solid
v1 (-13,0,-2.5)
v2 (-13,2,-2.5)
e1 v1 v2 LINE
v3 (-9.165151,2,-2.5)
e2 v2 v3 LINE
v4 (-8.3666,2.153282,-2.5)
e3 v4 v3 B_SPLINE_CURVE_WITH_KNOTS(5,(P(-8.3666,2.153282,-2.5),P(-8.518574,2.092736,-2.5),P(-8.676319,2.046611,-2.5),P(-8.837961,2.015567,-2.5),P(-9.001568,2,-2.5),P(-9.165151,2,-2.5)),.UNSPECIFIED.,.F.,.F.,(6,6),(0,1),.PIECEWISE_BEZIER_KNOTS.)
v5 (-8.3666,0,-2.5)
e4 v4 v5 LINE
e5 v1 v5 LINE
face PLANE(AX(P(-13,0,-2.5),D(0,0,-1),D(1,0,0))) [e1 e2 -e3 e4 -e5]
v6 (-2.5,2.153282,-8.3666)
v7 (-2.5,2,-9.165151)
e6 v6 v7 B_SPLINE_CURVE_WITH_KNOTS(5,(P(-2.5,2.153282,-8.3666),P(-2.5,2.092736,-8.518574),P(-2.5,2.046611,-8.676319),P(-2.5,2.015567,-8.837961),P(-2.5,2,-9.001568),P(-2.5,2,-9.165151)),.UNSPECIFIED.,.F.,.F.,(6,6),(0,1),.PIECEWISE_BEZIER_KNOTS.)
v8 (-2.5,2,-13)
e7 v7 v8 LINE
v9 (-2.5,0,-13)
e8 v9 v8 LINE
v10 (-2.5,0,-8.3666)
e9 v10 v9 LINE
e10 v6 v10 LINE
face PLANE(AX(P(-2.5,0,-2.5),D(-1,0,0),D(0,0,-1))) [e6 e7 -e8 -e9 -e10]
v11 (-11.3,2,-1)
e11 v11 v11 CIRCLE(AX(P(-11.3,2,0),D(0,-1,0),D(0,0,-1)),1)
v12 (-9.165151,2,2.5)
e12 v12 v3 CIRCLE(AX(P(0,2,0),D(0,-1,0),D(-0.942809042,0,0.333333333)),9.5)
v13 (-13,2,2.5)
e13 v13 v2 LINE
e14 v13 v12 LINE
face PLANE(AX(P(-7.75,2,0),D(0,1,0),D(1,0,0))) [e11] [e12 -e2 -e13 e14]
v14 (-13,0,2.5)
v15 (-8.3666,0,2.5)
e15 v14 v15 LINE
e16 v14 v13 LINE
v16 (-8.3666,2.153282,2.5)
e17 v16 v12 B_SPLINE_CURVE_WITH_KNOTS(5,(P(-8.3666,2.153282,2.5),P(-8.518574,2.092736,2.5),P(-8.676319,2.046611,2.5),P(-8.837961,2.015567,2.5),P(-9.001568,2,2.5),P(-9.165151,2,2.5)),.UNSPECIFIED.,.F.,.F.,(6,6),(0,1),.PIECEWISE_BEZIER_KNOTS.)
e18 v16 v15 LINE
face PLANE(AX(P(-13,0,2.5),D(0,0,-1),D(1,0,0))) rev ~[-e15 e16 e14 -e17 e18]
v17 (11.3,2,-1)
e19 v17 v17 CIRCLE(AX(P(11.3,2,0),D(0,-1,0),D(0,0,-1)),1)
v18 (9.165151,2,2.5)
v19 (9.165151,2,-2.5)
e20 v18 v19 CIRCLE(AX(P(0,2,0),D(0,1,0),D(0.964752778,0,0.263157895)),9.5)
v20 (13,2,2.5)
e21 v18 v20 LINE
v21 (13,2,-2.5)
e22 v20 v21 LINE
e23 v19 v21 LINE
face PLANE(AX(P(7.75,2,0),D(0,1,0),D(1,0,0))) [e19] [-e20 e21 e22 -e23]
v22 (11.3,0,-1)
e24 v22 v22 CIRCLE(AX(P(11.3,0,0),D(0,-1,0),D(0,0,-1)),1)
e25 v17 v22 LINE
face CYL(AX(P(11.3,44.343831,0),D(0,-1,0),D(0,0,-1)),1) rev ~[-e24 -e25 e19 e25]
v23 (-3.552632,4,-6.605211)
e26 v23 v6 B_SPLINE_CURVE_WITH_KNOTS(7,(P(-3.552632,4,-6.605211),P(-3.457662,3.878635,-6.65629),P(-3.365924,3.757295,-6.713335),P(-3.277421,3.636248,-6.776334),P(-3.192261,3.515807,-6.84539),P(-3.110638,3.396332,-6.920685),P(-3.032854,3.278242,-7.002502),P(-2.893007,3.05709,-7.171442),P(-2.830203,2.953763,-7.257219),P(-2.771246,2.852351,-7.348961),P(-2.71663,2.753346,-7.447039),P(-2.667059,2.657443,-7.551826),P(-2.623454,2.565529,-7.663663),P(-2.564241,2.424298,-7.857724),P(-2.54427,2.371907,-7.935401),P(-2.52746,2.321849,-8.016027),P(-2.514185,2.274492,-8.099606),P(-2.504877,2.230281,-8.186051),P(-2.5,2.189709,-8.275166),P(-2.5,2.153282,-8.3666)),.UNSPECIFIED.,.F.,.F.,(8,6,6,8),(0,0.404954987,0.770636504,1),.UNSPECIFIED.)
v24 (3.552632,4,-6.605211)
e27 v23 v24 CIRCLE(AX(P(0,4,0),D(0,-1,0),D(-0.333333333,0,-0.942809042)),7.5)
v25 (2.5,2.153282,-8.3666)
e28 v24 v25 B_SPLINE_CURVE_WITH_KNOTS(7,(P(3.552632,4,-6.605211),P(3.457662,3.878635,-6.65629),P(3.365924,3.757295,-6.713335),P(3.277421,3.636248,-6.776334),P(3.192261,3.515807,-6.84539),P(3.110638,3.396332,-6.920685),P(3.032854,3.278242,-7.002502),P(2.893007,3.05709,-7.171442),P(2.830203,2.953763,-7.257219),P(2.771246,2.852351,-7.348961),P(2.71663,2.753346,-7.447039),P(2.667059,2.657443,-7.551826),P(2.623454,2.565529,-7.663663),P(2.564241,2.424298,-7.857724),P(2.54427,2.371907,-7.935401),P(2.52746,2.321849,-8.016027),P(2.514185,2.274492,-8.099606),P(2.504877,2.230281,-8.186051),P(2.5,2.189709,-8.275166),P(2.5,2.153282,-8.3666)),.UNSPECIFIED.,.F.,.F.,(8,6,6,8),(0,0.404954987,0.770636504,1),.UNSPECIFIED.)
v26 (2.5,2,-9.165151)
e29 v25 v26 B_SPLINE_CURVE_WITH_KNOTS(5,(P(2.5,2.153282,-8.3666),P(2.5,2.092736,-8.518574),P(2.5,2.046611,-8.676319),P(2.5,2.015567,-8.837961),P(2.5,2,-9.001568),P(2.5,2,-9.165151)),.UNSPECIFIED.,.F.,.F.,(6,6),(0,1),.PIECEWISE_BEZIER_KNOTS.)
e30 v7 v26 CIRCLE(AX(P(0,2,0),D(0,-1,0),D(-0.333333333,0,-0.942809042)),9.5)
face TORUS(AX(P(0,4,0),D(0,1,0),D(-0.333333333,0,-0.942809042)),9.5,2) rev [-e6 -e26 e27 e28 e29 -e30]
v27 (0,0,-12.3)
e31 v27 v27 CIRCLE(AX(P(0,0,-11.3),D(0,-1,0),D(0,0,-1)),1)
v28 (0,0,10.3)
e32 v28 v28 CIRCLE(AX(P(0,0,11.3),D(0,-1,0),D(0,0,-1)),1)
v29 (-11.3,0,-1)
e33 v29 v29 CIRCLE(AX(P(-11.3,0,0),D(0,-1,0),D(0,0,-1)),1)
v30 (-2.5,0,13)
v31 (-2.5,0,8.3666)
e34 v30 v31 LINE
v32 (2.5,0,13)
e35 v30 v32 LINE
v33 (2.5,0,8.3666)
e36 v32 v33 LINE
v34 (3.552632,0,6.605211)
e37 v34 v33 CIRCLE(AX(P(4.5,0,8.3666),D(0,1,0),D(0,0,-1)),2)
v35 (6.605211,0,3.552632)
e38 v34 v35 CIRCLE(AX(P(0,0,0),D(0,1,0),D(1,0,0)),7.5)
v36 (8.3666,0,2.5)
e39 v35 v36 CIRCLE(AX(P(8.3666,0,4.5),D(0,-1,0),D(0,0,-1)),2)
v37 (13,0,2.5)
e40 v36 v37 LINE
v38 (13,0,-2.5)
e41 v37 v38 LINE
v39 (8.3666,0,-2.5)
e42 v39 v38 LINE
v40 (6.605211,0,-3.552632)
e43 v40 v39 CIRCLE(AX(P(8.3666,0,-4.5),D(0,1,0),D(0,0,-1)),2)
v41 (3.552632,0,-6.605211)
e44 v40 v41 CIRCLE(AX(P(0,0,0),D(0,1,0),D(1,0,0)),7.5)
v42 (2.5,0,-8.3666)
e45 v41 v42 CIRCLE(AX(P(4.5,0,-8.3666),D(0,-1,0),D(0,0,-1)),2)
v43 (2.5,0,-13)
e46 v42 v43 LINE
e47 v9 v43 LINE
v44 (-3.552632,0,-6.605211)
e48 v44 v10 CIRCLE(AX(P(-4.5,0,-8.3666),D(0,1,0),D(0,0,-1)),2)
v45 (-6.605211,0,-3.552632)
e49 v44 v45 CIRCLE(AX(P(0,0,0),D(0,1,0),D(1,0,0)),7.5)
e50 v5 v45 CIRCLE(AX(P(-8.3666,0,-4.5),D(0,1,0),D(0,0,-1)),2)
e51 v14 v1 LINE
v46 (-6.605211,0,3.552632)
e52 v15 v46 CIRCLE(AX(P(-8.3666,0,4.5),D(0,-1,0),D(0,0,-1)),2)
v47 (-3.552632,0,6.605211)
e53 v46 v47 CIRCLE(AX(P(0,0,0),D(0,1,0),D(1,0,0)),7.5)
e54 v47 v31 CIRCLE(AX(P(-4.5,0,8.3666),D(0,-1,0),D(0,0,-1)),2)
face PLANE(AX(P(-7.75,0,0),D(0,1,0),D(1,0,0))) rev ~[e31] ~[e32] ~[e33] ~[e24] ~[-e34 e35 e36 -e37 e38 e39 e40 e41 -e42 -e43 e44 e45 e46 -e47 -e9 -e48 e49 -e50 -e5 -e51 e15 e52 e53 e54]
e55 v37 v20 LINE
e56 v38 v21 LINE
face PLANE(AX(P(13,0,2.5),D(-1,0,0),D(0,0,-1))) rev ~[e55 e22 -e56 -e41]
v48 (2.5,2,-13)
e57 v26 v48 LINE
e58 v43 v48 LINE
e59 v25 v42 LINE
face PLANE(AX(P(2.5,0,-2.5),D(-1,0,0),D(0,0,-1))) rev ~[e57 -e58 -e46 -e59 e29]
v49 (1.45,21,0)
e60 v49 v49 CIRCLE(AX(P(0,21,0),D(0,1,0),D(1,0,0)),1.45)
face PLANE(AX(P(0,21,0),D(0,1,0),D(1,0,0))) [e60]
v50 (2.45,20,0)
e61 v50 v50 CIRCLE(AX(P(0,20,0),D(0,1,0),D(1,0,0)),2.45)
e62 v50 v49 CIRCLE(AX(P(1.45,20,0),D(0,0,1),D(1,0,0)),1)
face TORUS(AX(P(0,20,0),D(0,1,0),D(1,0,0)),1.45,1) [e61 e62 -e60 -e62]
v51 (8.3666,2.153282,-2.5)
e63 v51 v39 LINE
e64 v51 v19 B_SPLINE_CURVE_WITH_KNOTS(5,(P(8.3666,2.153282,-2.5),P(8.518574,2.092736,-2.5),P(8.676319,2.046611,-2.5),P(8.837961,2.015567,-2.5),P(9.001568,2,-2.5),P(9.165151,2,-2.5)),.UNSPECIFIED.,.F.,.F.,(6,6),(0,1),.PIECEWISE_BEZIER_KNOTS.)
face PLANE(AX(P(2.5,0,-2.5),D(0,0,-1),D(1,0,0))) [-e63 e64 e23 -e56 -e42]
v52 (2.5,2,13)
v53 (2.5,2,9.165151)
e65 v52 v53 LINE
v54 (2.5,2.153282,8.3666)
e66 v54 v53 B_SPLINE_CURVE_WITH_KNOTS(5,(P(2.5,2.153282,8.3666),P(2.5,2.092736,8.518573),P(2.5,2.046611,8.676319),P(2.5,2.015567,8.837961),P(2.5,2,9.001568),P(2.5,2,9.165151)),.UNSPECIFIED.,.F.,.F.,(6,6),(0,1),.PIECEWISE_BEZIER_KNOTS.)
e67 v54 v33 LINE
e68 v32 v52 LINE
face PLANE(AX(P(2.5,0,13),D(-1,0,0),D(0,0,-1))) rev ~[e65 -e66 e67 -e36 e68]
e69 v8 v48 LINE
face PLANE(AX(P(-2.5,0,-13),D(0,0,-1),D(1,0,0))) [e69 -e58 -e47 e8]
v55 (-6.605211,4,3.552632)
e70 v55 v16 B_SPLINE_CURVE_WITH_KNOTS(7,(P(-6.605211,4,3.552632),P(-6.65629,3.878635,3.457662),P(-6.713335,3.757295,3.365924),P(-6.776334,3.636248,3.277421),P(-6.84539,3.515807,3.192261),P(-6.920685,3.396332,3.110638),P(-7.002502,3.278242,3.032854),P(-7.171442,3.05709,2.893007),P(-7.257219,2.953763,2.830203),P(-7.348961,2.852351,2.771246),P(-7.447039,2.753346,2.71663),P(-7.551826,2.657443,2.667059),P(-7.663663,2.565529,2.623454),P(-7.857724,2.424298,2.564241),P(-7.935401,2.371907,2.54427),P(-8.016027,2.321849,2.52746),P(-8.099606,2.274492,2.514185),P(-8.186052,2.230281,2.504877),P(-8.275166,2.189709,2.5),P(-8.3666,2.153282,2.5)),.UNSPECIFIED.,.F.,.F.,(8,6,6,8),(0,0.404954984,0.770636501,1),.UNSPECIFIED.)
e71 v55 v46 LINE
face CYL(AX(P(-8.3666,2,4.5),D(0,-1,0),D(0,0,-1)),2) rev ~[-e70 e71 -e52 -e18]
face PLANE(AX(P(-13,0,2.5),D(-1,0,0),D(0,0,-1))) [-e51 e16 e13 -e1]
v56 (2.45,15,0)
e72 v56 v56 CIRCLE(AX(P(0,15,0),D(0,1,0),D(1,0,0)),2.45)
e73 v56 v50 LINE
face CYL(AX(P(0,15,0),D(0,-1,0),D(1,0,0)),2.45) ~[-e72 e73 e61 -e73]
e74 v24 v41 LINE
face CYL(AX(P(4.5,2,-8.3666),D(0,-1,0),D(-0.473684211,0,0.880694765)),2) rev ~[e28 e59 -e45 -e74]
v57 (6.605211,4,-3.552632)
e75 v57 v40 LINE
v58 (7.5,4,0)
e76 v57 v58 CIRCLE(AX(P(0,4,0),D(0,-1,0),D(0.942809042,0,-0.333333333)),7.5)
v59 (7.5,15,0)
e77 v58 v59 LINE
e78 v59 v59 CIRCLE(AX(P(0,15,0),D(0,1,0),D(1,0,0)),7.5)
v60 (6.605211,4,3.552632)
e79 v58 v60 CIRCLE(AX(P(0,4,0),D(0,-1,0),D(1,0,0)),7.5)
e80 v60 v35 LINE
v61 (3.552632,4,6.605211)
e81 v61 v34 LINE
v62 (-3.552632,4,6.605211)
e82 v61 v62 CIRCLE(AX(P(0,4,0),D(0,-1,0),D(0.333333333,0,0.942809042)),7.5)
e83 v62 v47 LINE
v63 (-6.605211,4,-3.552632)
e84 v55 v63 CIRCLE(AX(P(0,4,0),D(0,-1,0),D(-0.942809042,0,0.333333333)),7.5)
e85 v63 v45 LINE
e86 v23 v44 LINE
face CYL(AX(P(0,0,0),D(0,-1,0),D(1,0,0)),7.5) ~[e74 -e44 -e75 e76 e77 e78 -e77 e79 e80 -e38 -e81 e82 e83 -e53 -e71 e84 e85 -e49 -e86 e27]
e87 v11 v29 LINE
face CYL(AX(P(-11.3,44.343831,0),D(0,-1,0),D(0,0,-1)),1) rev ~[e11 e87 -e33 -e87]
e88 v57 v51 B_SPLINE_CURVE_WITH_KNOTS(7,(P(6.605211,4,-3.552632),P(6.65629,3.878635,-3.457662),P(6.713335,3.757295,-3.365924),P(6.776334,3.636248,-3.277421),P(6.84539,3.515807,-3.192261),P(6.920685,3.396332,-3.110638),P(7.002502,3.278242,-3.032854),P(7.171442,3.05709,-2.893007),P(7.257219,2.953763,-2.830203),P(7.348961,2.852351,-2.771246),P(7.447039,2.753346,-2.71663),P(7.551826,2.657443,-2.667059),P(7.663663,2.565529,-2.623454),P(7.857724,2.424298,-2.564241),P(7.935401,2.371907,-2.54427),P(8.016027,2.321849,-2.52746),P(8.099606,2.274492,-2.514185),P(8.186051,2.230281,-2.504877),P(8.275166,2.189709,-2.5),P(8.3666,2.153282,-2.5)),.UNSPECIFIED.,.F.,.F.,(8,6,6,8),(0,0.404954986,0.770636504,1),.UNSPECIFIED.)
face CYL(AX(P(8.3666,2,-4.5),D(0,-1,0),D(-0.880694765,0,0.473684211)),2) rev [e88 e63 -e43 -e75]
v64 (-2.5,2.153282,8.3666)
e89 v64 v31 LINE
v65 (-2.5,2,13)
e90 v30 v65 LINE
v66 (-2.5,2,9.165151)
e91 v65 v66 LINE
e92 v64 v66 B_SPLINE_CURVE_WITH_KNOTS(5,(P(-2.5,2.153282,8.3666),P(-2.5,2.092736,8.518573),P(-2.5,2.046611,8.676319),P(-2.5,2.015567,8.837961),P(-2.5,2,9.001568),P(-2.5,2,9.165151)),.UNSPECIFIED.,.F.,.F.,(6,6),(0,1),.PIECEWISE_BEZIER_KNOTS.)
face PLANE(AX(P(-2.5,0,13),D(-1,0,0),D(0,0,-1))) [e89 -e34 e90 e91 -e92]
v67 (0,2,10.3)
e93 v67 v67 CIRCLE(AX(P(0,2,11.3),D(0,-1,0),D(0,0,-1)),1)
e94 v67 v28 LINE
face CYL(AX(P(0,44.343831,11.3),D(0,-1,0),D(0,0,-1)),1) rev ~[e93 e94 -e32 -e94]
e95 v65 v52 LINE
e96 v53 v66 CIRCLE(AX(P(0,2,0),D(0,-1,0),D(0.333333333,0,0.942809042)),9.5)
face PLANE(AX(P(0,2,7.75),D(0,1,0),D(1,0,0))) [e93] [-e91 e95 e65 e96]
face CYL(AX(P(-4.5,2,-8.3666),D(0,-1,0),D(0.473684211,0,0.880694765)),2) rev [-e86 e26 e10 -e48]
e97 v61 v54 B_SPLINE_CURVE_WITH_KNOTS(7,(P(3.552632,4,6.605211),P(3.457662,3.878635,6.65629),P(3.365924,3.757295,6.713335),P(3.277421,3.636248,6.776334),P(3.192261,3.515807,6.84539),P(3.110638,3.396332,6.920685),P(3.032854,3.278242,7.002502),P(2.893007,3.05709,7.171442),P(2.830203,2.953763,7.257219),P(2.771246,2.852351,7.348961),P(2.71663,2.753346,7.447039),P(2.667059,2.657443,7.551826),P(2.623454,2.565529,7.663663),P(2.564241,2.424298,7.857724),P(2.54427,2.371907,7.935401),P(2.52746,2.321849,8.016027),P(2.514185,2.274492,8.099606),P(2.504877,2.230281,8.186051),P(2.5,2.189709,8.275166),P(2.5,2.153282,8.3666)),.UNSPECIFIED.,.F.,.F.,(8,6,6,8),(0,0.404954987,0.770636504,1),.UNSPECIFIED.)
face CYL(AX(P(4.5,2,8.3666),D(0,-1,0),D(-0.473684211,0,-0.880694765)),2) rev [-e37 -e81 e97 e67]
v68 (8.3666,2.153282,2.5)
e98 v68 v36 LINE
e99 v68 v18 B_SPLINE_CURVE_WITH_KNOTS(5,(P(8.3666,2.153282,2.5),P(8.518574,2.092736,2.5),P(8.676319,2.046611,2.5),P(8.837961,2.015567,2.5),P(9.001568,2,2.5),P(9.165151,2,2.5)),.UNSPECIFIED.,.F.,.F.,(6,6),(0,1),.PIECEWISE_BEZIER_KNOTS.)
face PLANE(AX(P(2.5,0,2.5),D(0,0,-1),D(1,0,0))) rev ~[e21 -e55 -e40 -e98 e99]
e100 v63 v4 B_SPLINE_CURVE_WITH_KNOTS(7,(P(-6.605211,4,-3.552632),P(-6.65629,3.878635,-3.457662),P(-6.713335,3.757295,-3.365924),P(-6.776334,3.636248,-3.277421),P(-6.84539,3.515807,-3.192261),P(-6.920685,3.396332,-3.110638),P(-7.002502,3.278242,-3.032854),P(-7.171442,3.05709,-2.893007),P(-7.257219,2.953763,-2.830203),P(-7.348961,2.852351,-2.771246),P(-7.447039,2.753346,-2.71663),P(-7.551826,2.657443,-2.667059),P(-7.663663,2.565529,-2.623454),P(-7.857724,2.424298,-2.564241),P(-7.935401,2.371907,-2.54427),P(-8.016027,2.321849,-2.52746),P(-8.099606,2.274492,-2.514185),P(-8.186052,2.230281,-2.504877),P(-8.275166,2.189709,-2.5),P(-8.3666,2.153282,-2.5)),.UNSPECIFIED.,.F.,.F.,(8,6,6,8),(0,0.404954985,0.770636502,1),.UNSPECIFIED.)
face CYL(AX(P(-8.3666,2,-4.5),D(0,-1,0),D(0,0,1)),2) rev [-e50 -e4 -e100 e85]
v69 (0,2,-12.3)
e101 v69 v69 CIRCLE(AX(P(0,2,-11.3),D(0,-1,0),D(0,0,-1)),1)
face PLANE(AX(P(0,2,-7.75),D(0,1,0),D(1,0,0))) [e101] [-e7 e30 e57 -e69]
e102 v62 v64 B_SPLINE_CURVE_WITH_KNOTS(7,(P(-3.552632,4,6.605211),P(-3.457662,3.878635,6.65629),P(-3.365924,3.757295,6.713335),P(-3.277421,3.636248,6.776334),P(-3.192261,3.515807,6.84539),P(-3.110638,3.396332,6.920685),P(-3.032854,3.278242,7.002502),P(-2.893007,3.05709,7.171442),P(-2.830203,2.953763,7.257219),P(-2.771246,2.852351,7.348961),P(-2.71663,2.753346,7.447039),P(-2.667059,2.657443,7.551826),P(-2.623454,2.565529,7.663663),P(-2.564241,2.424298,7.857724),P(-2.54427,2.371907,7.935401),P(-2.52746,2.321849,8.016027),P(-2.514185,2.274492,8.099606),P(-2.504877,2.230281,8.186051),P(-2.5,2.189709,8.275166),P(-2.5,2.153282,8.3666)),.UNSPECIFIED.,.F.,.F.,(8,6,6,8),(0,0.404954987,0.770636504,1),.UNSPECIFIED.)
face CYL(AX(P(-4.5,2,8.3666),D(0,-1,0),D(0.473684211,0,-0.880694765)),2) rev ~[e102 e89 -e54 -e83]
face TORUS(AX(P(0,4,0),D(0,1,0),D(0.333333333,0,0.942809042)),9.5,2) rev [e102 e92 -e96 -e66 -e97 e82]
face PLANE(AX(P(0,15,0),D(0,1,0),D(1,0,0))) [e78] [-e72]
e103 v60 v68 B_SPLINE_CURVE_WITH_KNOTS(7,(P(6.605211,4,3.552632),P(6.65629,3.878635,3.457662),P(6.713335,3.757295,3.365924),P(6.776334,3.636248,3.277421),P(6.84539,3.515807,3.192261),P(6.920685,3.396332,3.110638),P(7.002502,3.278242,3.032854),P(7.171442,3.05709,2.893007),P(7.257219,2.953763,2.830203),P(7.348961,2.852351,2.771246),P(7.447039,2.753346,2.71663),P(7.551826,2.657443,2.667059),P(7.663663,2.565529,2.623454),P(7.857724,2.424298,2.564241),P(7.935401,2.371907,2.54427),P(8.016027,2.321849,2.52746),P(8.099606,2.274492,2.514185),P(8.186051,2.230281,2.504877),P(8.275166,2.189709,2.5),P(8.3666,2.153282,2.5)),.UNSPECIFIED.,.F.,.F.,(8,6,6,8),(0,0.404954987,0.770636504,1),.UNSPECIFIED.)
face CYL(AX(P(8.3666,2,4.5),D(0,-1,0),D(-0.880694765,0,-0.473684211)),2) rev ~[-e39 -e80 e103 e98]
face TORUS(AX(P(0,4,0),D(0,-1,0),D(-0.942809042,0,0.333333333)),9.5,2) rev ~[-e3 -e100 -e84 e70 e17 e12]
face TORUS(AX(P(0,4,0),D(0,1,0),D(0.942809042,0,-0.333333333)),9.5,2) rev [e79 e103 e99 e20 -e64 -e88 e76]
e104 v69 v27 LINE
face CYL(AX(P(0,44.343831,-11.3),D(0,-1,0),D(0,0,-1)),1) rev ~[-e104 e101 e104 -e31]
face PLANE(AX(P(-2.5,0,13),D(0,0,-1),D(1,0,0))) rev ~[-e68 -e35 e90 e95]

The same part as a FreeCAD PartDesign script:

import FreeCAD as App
import Part
import Sketcher

V = App.Vector


def edges_at(feature, points):
    """Names of the edges that pass closest to the given points."""
    edges = feature.Shape.Edges
    near = lambda p: min(range(len(edges)), key=lambda i: edges[i].distToShape(Part.Vertex(*p))[0])
    return sorted({f"Edge{near(p) + 1}" for p in points})

doc = App.newDocument("Part")
body = doc.addObject("PartDesign::Body", "Body")

sketch1 = body.newObject("Sketcher::SketchObject", "Sketch")
sketch1.AttachmentSupport = (doc.getObject("XZ_Plane"), [""])
sketch1.MapMode = "FlatFace"
sketch1.addGeometry(Part.Circle(V(0, 0, 0), V(0, 0, 1), 7.5), False)
sketch1.addConstraint([
    Sketcher.Constraint("Coincident", 0, 3, -1, 1),
    Sketcher.Constraint("Diameter", 0, 15.0),
])
pad1 = body.newObject("PartDesign::Pad", "Pad")
pad1.Profile = sketch1
pad1.Length = 15
pad1.Reversed = True

sketch2 = body.newObject("Sketcher::SketchObject", "Sketch001")
sketch2.AttachmentSupport = (doc.getObject("XZ_Plane"), [""])
sketch2.MapMode = "FlatFace"
sketch2.AttachmentOffset = App.Placement(V(0, 0, -15), App.Rotation())
sketch2.addGeometry(Part.Circle(V(0, 0, 0), V(0, 0, 1), 2.45), False)
sketch2.addConstraint([
    Sketcher.Constraint("Coincident", 0, 3, -1, 1),
    Sketcher.Constraint("Diameter", 0, 4.9),
])
pad2 = body.newObject("PartDesign::Pad", "Pad001")
pad2.Profile = sketch2
pad2.Length = 6
pad2.Reversed = True

sketch3 = body.newObject("Sketcher::SketchObject", "Sketch002")
sketch3.AttachmentSupport = (doc.getObject("XZ_Plane"), [""])
sketch3.MapMode = "FlatFace"
sketch3.addGeometry([
    Part.LineSegment(V(-13, -2.5, 0), V(-13, 2.5, 0)),
    Part.LineSegment(V(-13, 2.5, 0), V(-2.5, 2.5, 0)),
    Part.LineSegment(V(-2.5, 2.5, 0), V(-2.5, -2.5, 0)),
    Part.LineSegment(V(-2.5, -2.5, 0), V(-13, -2.5, 0)),
    Part.LineSegment(V(-2.5, 2.5, 0), V(-2.5, 13, 0)),
    Part.LineSegment(V(-2.5, 13, 0), V(2.5, 13, 0)),
    Part.LineSegment(V(2.5, 13, 0), V(2.5, 2.5, 0)),
    Part.LineSegment(V(2.5, 2.5, 0), V(-2.5, 2.5, 0)),
    Part.LineSegment(V(2.5, -2.5, 0), V(2.5, 2.5, 0)),
    Part.LineSegment(V(2.5, 2.5, 0), V(13, 2.5, 0)),
    Part.LineSegment(V(13, 2.5, 0), V(13, -2.5, 0)),
    Part.LineSegment(V(13, -2.5, 0), V(2.5, -2.5, 0)),
    Part.LineSegment(V(-2.5, -13, 0), V(-2.5, -2.5, 0)),
    Part.LineSegment(V(-2.5, -2.5, 0), V(2.5, -2.5, 0)),
    Part.LineSegment(V(2.5, -2.5, 0), V(2.5, -13, 0)),
    Part.LineSegment(V(2.5, -13, 0), V(-2.5, -13, 0)),
], False)
sketch3.addConstraint([
    Sketcher.Constraint("Coincident", 0, 2, 1, 1),
    Sketcher.Constraint("Coincident", 1, 2, 2, 1),
    Sketcher.Constraint("Coincident", 2, 2, 3, 1),
    Sketcher.Constraint("Coincident", 3, 2, 0, 1),
    Sketcher.Constraint("Coincident", 4, 2, 5, 1),
    Sketcher.Constraint("Coincident", 5, 2, 6, 1),
    Sketcher.Constraint("Coincident", 6, 2, 7, 1),
    Sketcher.Constraint("Coincident", 7, 2, 4, 1),
    Sketcher.Constraint("Coincident", 8, 2, 9, 1),
    Sketcher.Constraint("Coincident", 9, 2, 10, 1),
    Sketcher.Constraint("Coincident", 10, 2, 11, 1),
    Sketcher.Constraint("Coincident", 11, 2, 8, 1),
    Sketcher.Constraint("Coincident", 12, 2, 13, 1),
    Sketcher.Constraint("Coincident", 13, 2, 14, 1),
    Sketcher.Constraint("Coincident", 14, 2, 15, 1),
    Sketcher.Constraint("Coincident", 15, 2, 12, 1),
    Sketcher.Constraint("Vertical", 0),
    Sketcher.Constraint("Horizontal", 1),
    Sketcher.Constraint("Vertical", 2),
    Sketcher.Constraint("Horizontal", 3),
    Sketcher.Constraint("Vertical", 4),
    Sketcher.Constraint("Horizontal", 5),
    Sketcher.Constraint("Vertical", 6),
    Sketcher.Constraint("Horizontal", 7),
    Sketcher.Constraint("Vertical", 8),
    Sketcher.Constraint("Horizontal", 9),
    Sketcher.Constraint("Vertical", 10),
    Sketcher.Constraint("Horizontal", 11),
    Sketcher.Constraint("Vertical", 12),
    Sketcher.Constraint("Horizontal", 13),
    Sketcher.Constraint("Vertical", 14),
    Sketcher.Constraint("Horizontal", 15),
    Sketcher.Constraint("Coincident", 7, 2, 1, 2),
    Sketcher.Constraint("Coincident", 8, 2, 6, 2),
    Sketcher.Constraint("Coincident", 12, 2, 2, 2),
    Sketcher.Constraint("Coincident", 13, 2, 11, 2),
    Sketcher.Constraint("Symmetric", 2, 2, 6, 2, -1, 1),
    Sketcher.Constraint("Equal", 3, 9),
    Sketcher.Constraint("Equal", 15, 0),
    Sketcher.Constraint("Equal", 11, 4),
    Sketcher.Constraint("Equal", 6, 12),
    Sketcher.Constraint("DistanceX", 5, 1, 5, 2, 5.0),
    Sketcher.Constraint("DistanceX", 1, 1, 1, 2, 10.5),
])
pad3 = body.newObject("PartDesign::Pad", "Pad002")
pad3.Profile = sketch3
pad3.Length = 2
pad3.Reversed = True
doc.recompute()

fillet = body.newObject("PartDesign::Fillet", "Fillet")
fillet.Base = (pad3, edges_at(pad3, [
    (-7.5, 2, 0),
    (-7.071, 1, 2.5),
    (-7.071, 1, -2.5),
    (0, 2, 7.5),
    (-2.5, 1, 7.071),
    (2.5, 1, 7.071),
    (7.392, 2, -1.268),
    (7.071, 1, 2.5),
    (7.071, 1, -2.5),
    (0, 2, -7.5),
    (-2.5, 1, -7.071),
    (2.5, 1, -7.071),
]))
fillet.Radius = 2

sketch4 = body.newObject("Sketcher::SketchObject", "Sketch003")
sketch4.AttachmentSupport = (doc.getObject("XZ_Plane"), [""])
sketch4.MapMode = "FlatFace"
sketch4.AttachmentOffset = App.Placement(V(0, 0, -2), App.Rotation())
sketch4.addGeometry([
    Part.Circle(V(-11.3, 0, 0), V(0, 0, 1), 1),
    Part.Circle(V(0, -11.3, 0), V(0, 0, 1), 1),
    Part.Circle(V(11.3, 0, 0), V(0, 0, 1), 1),
    Part.Circle(V(0, 11.3, 0), V(0, 0, 1), 1),
], False)
sketch4.addConstraint([
    Sketcher.Constraint("Equal", 0, 1),
    Sketcher.Constraint("Equal", 1, 2),
    Sketcher.Constraint("Equal", 2, 3),
    Sketcher.Constraint("Symmetric", 0, 3, 2, 3, -1, 1),
    Sketcher.Constraint("Symmetric", 1, 3, 3, 3, -1, 1),
    Sketcher.Constraint("PointOnObject", 0, 3, -1),
    Sketcher.Constraint("PointOnObject", 1, 3, -2),
    Sketcher.Constraint("Diameter", 0, 2.0),
    Sketcher.Constraint("DistanceX", 0, 3, -1, 1, 11.3),
    Sketcher.Constraint("DistanceY", 1, 3, -1, 1, 11.3),
])
doc.recompute()
hole = body.newObject("PartDesign::Hole", "Hole")
hole.Profile = sketch4
hole.ThreadType = "None"
hole.Diameter = 2
hole.DepthType = "ThroughAll"
hole.Reversed = True
doc.recompute()

fillet2 = body.newObject("PartDesign::Fillet", "Fillet001")
fillet2.Base = (hole, edges_at(hole, [(-2.45, 21, 0)]))
fillet2.Radius = 1

doc.recompute()
